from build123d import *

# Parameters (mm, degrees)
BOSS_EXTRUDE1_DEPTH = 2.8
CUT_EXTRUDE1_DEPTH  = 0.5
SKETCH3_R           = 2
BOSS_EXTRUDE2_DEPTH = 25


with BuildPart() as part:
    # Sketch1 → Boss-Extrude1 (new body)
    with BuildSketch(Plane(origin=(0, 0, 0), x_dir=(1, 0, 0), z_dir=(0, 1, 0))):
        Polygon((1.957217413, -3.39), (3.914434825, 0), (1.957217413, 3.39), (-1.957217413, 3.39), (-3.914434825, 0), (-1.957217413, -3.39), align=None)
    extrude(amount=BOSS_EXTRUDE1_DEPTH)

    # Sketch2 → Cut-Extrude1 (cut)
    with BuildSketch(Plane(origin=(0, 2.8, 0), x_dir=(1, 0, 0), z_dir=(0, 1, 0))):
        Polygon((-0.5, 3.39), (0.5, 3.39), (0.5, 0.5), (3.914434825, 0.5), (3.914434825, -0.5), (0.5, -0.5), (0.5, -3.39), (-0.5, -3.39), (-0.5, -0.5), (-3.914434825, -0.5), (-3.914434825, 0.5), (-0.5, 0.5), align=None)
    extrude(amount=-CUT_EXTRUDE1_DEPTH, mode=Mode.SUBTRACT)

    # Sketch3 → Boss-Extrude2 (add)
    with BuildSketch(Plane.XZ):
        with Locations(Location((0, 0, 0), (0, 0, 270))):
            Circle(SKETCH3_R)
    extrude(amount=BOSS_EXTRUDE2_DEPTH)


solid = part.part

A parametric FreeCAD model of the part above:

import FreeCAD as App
import Part
import Sketcher

V = App.Vector
Q = App.Units.Quantity

doc = App.newDocument("Part")
body = doc.addObject("PartDesign::Body", "Body")

sketch1 = doc.addObject("Sketcher::SketchObject", "Sketch")
body.addObject(sketch1)
sketch1.AttachmentSupport = (doc.XZ_Plane, [""])
sketch1.MapMode = "FlatFace"
sketch1.addGeometry(Part.LineSegment(V(1.957217, 3.39, 0), V(3.914435, 0, 0)), False)
sketch1.addGeometry(Part.LineSegment(V(3.914435, 0, 0), V(1.957217, -3.39, 0)), False)
sketch1.addGeometry(Part.LineSegment(V(1.957217, -3.39, 0), V(-1.957217, -3.39, 0)), False)
sketch1.addGeometry(Part.LineSegment(V(-1.957217, -3.39, 0), V(-3.914435, 0, 0)), False)
sketch1.addGeometry(Part.LineSegment(V(-3.914435, 0, 0), V(-1.957217, 3.39, 0)), False)
sketch1.addGeometry(Part.LineSegment(V(-1.957217, 3.39, 0), V(1.957217, 3.39, 0)), False)
sketch1.addConstraint(Sketcher.Constraint("Coincident", 0, 2, 1, 1))
sketch1.addConstraint(Sketcher.Constraint("Coincident", 1, 2, 2, 1))
sketch1.addConstraint(Sketcher.Constraint("Coincident", 2, 2, 3, 1))
sketch1.addConstraint(Sketcher.Constraint("Coincident", 3, 2, 4, 1))
sketch1.addConstraint(Sketcher.Constraint("Coincident", 4, 2, 5, 1))
sketch1.addConstraint(Sketcher.Constraint("Coincident", 5, 2, 0, 1))
sketch1.addConstraint(Sketcher.Constraint("Horizontal", 2))
sketch1.addConstraint(Sketcher.Constraint("Horizontal", 5))
sketch1.addConstraint(Sketcher.Constraint("Symmetric", 0, 2, 3, 2, -1, 1))
sketch1.addConstraint(Sketcher.Constraint("Symmetric", 1, 2, 4, 2, -1, 1))
sketch1.addConstraint(Sketcher.Constraint("PointOnObject", 0, 2, -1))
sketch1.addConstraint(Sketcher.Constraint("Parallel", 0, 3))
sketch1.addConstraint(Sketcher.Constraint("Vertical", 2, 2, 4, 2))
sketch1.addConstraint(Sketcher.Constraint("Angle", 0, Q("-60 deg")))
sketch1.addConstraint(Sketcher.Constraint("DistanceY", 1, 2, -1, 1, 3.39))
sketch1.addConstraint(Sketcher.Constraint("DistanceX", 2, 2, 2, 1, 3.914435))
pad1 = doc.addObject("PartDesign::Pad", "Pad")
body.addObject(pad1)
pad1.Profile = sketch1
pad1.Length = 2.8
pad1.Reversed = True

sketch2 = doc.addObject("Sketcher::SketchObject", "Sketch001")
body.addObject(sketch2)
sketch2.AttachmentSupport = (doc.XZ_Plane, [""])
sketch2.MapMode = "FlatFace"
sketch2.AttachmentOffset = App.Placement(V(0, 0, -2.8), App.Rotation())
sketch2.addGeometry(Part.LineSegment(V(0.5, -3.39, 0), V(-0.5, -3.39, 0)), False)
sketch2.addGeometry(Part.LineSegment(V(-0.5, -3.39, 0), V(-0.5, -0.5, 0)), False)
sketch2.addGeometry(Part.LineSegment(V(-0.5, -0.5, 0), V(-3.914435, -0.5, 0)), False)
sketch2.addGeometry(Part.LineSegment(V(-3.914435, -0.5, 0), V(-3.914435, 0.5, 0)), False)
sketch2.addGeometry(Part.LineSegment(V(-3.914435, 0.5, 0), V(-0.5, 0.5, 0)), False)
sketch2.addGeometry(Part.LineSegment(V(-0.5, 0.5, 0), V(-0.5, 3.39, 0)), False)
sketch2.addGeometry(Part.LineSegment(V(-0.5, 3.39, 0), V(0.5, 3.39, 0)), False)
sketch2.addGeometry(Part.LineSegment(V(0.5, 3.39, 0), V(0.5, 0.5, 0)), False)
sketch2.addGeometry(Part.LineSegment(V(0.5, 0.5, 0), V(3.914435, 0.5, 0)), False)
sketch2.addGeometry(Part.LineSegment(V(3.914435, 0.5, 0), V(3.914435, -0.5, 0)), False)
sketch2.addGeometry(Part.LineSegment(V(3.914435, -0.5, 0), V(0.5, -0.5, 0)), False)
sketch2.addGeometry(Part.LineSegment(V(0.5, -0.5, 0), V(0.5, -3.39, 0)), False)
sketch2.addConstraint(Sketcher.Constraint("Coincident", 0, 2, 1, 1))
sketch2.addConstraint(Sketcher.Constraint("Coincident", 1, 2, 2, 1))
sketch2.addConstraint(Sketcher.Constraint("Coincident", 2, 2, 3, 1))
sketch2.addConstraint(Sketcher.Constraint("Coincident", 3, 2, 4, 1))
sketch2.addConstraint(Sketcher.Constraint("Coincident", 4, 2, 5, 1))
sketch2.addConstraint(Sketcher.Constraint("Coincident", 5, 2, 6, 1))
sketch2.addConstraint(Sketcher.Constraint("Coincident", 6, 2, 7, 1))
sketch2.addConstraint(Sketcher.Constraint("Coincident", 7, 2, 8, 1))
sketch2.addConstraint(Sketcher.Constraint("Coincident", 8, 2, 9, 1))
sketch2.addConstraint(Sketcher.Constraint("Coincident", 9, 2, 10, 1))
sketch2.addConstraint(Sketcher.Constraint("Coincident", 10, 2, 11, 1))
sketch2.addConstraint(Sketcher.Constraint("Coincident", 11, 2, 0, 1))
sketch2.addConstraint(Sketcher.Constraint("Horizontal", 0))
sketch2.addConstraint(Sketcher.Constraint("Vertical", 1))
sketch2.addConstraint(Sketcher.Constraint("Horizontal", 2))
sketch2.addConstraint(Sketcher.Constraint("Vertical", 3))
sketch2.addConstraint(Sketcher.Constraint("Horizontal", 4))
sketch2.addConstraint(Sketcher.Constraint("Vertical", 5))
sketch2.addConstraint(Sketcher.Constraint("Horizontal", 6))
sketch2.addConstraint(Sketcher.Constraint("Vertical", 7))
sketch2.addConstraint(Sketcher.Constraint("Horizontal", 8))
sketch2.addConstraint(Sketcher.Constraint("Vertical", 9))
sketch2.addConstraint(Sketcher.Constraint("Horizontal", 10))
sketch2.addConstraint(Sketcher.Constraint("Vertical", 11))
sketch2.addConstraint(Sketcher.Constraint("Symmetric", 0, 2, 6, 2, -1, 1))
sketch2.addConstraint(Sketcher.Constraint("Symmetric", 2, 2, 8, 2, -1, 1))
sketch2.addConstraint(Sketcher.Constraint("Symmetric", 4, 2, 10, 2, -1, 1))
sketch2.addConstraint(Sketcher.Constraint("Symmetric", 4, 2, 7, 2, -2))
sketch2.addConstraint(Sketcher.Constraint("Equal", 6, 3))
sketch2.addConstraint(Sketcher.Constraint("DistanceX", 0, 2, 0, 1, 1.0))
sketch2.addConstraint(Sketcher.Constraint("DistanceY", 1, 1, 1, 2, 2.89))
sketch2.addConstraint(Sketcher.Constraint("DistanceX", 2, 2, 2, 1, 3.414435))
pocket1 = doc.addObject("PartDesign::Pocket", "Pocket")
body.addObject(pocket1)
pocket1.Profile = sketch2
pocket1.Length = 0.5
pocket1.Reversed = True

sketch3 = doc.addObject("Sketcher::SketchObject", "Sketch002")
body.addObject(sketch3)
sketch3.AttachmentSupport = (doc.XZ_Plane, [""])
sketch3.MapMode = "FlatFace"
sketch3.addGeometry(Part.Circle(V(0, 0, 0), V(0, 0, 1), 2), False)
sketch3.addConstraint(Sketcher.Constraint("Coincident", 0, 3, -1, 1))
sketch3.addConstraint(Sketcher.Constraint("Diameter", 0, 4.0))
pad2 = doc.addObject("PartDesign::Pad", "Pad001")
body.addObject(pad2)
pad2.Profile = sketch3
pad2.Length = 25

doc.recompute()
